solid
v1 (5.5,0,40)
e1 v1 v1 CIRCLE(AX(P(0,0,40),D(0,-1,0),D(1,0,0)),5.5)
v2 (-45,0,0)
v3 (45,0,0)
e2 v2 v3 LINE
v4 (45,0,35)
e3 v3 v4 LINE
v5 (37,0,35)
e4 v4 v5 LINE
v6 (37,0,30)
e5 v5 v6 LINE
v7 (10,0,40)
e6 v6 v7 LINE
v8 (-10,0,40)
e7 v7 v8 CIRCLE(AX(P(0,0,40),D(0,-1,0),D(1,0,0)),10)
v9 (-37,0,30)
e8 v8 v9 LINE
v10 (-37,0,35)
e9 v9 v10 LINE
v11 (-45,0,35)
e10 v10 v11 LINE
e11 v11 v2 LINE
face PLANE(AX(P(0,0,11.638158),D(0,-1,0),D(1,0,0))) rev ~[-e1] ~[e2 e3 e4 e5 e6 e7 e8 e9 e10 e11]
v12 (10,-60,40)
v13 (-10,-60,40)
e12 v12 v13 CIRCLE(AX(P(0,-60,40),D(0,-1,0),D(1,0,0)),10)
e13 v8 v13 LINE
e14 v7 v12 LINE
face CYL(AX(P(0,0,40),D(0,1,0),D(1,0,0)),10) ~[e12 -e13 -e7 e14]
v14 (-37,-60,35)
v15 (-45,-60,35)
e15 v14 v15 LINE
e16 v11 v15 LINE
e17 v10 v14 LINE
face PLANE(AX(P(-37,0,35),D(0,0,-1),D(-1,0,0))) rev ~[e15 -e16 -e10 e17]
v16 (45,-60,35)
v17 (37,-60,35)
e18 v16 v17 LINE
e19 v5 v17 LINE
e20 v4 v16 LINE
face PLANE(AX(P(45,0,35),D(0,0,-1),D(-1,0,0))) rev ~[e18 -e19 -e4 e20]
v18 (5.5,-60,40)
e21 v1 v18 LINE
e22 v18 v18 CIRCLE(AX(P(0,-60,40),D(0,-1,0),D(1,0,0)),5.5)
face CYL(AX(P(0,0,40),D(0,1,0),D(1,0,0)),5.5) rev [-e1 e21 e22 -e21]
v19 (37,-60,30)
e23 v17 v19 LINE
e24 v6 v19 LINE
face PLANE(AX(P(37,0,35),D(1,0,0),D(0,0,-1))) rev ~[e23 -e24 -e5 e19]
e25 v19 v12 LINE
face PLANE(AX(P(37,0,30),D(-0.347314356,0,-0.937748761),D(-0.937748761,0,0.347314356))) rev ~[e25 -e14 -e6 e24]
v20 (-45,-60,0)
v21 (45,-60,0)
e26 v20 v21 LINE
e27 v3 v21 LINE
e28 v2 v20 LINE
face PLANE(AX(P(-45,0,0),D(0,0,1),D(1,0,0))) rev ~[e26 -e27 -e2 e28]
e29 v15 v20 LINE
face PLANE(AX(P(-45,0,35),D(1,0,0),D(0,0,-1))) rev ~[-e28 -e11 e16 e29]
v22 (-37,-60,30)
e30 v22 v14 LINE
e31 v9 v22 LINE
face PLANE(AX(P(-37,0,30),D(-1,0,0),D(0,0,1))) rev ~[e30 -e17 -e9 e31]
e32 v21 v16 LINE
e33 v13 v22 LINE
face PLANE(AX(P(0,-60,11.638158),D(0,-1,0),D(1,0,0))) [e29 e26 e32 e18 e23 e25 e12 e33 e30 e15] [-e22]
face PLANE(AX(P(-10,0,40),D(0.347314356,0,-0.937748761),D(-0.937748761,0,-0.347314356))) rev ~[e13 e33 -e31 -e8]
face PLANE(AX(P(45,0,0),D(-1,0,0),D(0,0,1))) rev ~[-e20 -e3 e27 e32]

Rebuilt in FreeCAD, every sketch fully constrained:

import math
import FreeCAD as App
import Part
import Sketcher
from FreeCAD import Vector
Q = App.Units.Quantity

doc = App.newDocument("Part")
params = doc.addObject("Spreadsheet::Sheet", "Params")
for row, (alias, value) in enumerate([
    ("sketch1_diameter", "11 mm"),
    ("sketch1_radius", "10 mm"),
    ("sketch1_width", "90 mm"),
    ("sketch1_width2", "8 mm"),
    ("sketch1_height", "35 mm"),
    ("pad1_length", "60 mm"),
], start=1):
    params.set(f"A{row}", alias)
    params.set(f"B{row}", "=" + value)
    params.setAlias(f"B{row}", alias)

body = doc.addObject("PartDesign::Body", "Body")

# Sketch on XZ plane
sketch1 = body.newObject("Sketcher::SketchObject", "Sketch")
sketch1.AttachmentSupport = (doc.getObject("XZ_Plane"), [""])
sketch1.MapMode = "FlatFace"
sketch1.addGeometry([
    Part.LineSegment(Vector(-45, 35, 0), Vector(-45, 0, 0)),  # 0
    Part.LineSegment(Vector(-45, 0, 0), Vector(45, 0, 0)),  # 1
    Part.LineSegment(Vector(45, 0, 0), Vector(45, 35, 0)),  # 2
    Part.LineSegment(Vector(45, 35, 0), Vector(37, 35, 0)),  # 3
    Part.LineSegment(Vector(37, 35, 0), Vector(37, 30, 0)),  # 4
    Part.LineSegment(Vector(37, 30, 0), Vector(10, 40, 0)),  # 5
    Part.ArcOfCircle(Part.Circle(Vector(0, 40, 0), Vector(0, 0, 1), 10), math.radians(0), math.radians(180)),  # 6
    Part.LineSegment(Vector(-10, 40, 0), Vector(-37, 30, 0)),  # 7
    Part.LineSegment(Vector(-37, 30, 0), Vector(-37, 35, 0)),  # 8
    Part.LineSegment(Vector(-37, 35, 0), Vector(-45, 35, 0)),  # 9
    Part.Circle(Vector(0, 40, 0), Vector(0, 0, 1), 5.5),  # 10
], False)
sketch1.addConstraint([
    Sketcher.Constraint("Coincident", 0, 2, 1, 1),
    Sketcher.Constraint("Coincident", 1, 2, 2, 1),
    Sketcher.Constraint("Coincident", 2, 2, 3, 1),
    Sketcher.Constraint("Coincident", 3, 2, 4, 1),
    Sketcher.Constraint("Coincident", 4, 2, 5, 1),
    Sketcher.Constraint("Coincident", 5, 2, 6, 1),
    Sketcher.Constraint("Coincident", 6, 2, 7, 1),
    Sketcher.Constraint("Coincident", 7, 2, 8, 1),
    Sketcher.Constraint("Coincident", 8, 2, 9, 1),
    Sketcher.Constraint("Coincident", 9, 2, 0, 1),
    Sketcher.Constraint("Vertical", 0),
    Sketcher.Constraint("Horizontal", 1),
    Sketcher.Constraint("Vertical", 2),
    Sketcher.Constraint("Horizontal", 3),
    Sketcher.Constraint("Vertical", 4),
    Sketcher.Constraint("Vertical", 8),
    Sketcher.Constraint("Horizontal", 9),
    Sketcher.Constraint("Coincident", 10, 3, 6, 3),
    Sketcher.Constraint("Symmetric", 0, 2, 1, 2, -1, 1),
    Sketcher.Constraint("Symmetric", 5, 2, 6, 2, -2),
    Sketcher.Constraint("Symmetric", 4, 2, 7, 2, -2),
    Sketcher.Constraint("Horizontal", 10, 3, 5, 2),
    Sketcher.Constraint("Horizontal", 3, 2, 8, 2),
    Sketcher.Constraint("Diameter", 10, Q("11 mm")),
    Sketcher.Constraint("Radius", 6, Q("10 mm")),
    Sketcher.Constraint("DistanceX", 1, 1, 1, 2, Q("90 mm")),
    Sketcher.Constraint("DistanceX", 3, 2, 3, 1, Q("8 mm")),
    Sketcher.Constraint("DistanceY", 0, 2, 0, 1, Q("35 mm")),
    Sketcher.Constraint("DistanceY", 4, 2, 4, 1, Q("5 mm")),
    Sketcher.Constraint("DistanceY", -1, 1, 6, 3, Q("40 mm")),
])
sketch1.setExpression("Constraints[23]", "Params.sketch1_diameter")
sketch1.setExpression("Constraints[24]", "Params.sketch1_radius")
sketch1.setExpression("Constraints[25]", "Params.sketch1_width")
sketch1.setExpression("Constraints[26]", "Params.sketch1_width2")
sketch1.setExpression("Constraints[27]", "Params.sketch1_height")
pad1 = body.newObject("PartDesign::Pad", "Pad")
pad1.Profile = sketch1
pad1.setExpression("Length", "Params.pad1_length")

doc.recompute()
